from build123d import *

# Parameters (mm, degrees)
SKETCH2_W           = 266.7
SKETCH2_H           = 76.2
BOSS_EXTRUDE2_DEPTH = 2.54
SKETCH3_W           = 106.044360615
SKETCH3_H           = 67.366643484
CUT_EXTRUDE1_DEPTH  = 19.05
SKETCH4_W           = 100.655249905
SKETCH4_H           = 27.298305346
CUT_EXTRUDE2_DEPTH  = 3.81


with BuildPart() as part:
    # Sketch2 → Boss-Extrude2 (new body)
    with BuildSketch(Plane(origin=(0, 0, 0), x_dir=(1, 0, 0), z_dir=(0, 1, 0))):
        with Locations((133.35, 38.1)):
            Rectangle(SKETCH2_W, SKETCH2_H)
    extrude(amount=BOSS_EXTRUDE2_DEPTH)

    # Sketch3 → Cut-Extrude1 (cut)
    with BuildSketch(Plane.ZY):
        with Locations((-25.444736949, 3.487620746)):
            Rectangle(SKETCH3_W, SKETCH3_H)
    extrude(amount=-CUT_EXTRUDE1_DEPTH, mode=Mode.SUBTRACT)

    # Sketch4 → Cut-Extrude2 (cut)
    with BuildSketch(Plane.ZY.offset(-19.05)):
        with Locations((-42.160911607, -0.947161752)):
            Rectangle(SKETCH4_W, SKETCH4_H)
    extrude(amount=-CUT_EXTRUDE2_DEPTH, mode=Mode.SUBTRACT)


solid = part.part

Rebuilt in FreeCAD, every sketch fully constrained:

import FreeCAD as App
import Part
import Sketcher
from FreeCAD import Vector
Q = App.Units.Quantity


def add_polygon(sketch, points):
    """Adds a closed chain of lines whose ends are joined by coincident constraints."""
    first, n = sketch.GeometryCount, len(points)
    for a, b in zip(points, points[1:] + points[:1]):
        sketch.addGeometry(Part.LineSegment(App.Vector(*a, 0), App.Vector(*b, 0)), False)
    for i in range(n):
        sketch.addConstraint(Sketcher.Constraint("Coincident", first + i, 2, first + (i + 1) % n, 1))

doc = App.newDocument("Part")
params = doc.addObject("Spreadsheet::Sheet", "Params")
for row, (alias, value) in enumerate([
    ("sketch1_height", "3 in"),
    ("sketch1_width", "10.5 in"),
    ("pad1_length", "0.1 in"),
    ("pocket1_length", "0.75 in"),
    ("pocket2_length", "0.15 in"),
], start=1):
    params.set(f"A{row}", alias)
    params.set(f"B{row}", "=" + value)
    params.setAlias(f"B{row}", alias)

body = doc.addObject("PartDesign::Body", "Body")

sketch1 = body.newObject("Sketcher::SketchObject", "Sketch")
sketch1.AttachmentSupport = (doc.getObject("XZ_Plane"), [""])
sketch1.MapMode = "FlatFace"
add_polygon(sketch1, [(0, -76), (0, 0), (267, 0), (267, -76)])
sketch1.addConstraint(Sketcher.Constraint("Vertical", 0))
sketch1.addConstraint(Sketcher.Constraint("Horizontal", 1))
sketch1.addConstraint(Sketcher.Constraint("Vertical", 2))
sketch1.addConstraint(Sketcher.Constraint("Horizontal", 3))
sketch1.addConstraint(Sketcher.Constraint("Coincident", 0, 2, -1, 1))
sketch1.addConstraint(Sketcher.Constraint("DistanceY", 0, 1, 0, 2, Q("3 in")))
sketch1.addConstraint(Sketcher.Constraint("DistanceX", 1, 1, 1, 2, Q("10.5 in")))
sketch1.setExpression("Constraints[9]", "Params.sketch1_height")
sketch1.setExpression("Constraints[10]", "Params.sketch1_width")
pad1 = body.newObject("PartDesign::Pad", "Pad")
pad1.Profile = sketch1
pad1.setExpression("Length", "Params.pad1_length")
pad1.Reversed = True

sketch2 = body.newObject("Sketcher::SketchObject", "Sketch001")
sketch2.AttachmentSupport = (doc.getObject("YZ_Plane"), [""])
sketch2.MapMode = "FlatFace"
add_polygon(sketch2, [(37, -78), (-30, -78), (-30, 28), (37, 28)])
sketch2.addConstraint(Sketcher.Constraint("Horizontal", 0))
sketch2.addConstraint(Sketcher.Constraint("Vertical", 1))
sketch2.addConstraint(Sketcher.Constraint("Horizontal", 2))
sketch2.addConstraint(Sketcher.Constraint("Vertical", 3))
sketch2.addConstraint(Sketcher.Constraint("DistanceY", 1, 1, 1, 2, Q("106.044361 mm")))
sketch2.addConstraint(Sketcher.Constraint("DistanceX", 0, 2, -1, 1, Q("30.195701 mm")))
sketch2.addConstraint(Sketcher.Constraint("DistanceX", 0, 2, 0, 1, Q("67.366643 mm")))
sketch2.addConstraint(Sketcher.Constraint("DistanceY", 0, 2, -1, 1, Q("78.466917 mm")))
pocket1 = body.newObject("PartDesign::Pocket", "Pocket")
pocket1.Profile = sketch2
pocket1.setExpression("Length", "Params.pocket1_length")
pocket1.Reversed = True

sketch3 = body.newObject("Sketcher::SketchObject", "Sketch002")
sketch3.AttachmentSupport = (doc.getObject("YZ_Plane"), [""])
sketch3.MapMode = "FlatFace"
sketch3.AttachmentOffset = App.Placement(Vector(0, 0, 0.75 * 25.4), App.Rotation())
add_polygon(sketch3, [(13, -92), (-15, -92), (-15, 8), (13, 8)])
sketch3.addConstraint(Sketcher.Constraint("Horizontal", 0))
sketch3.addConstraint(Sketcher.Constraint("Vertical", 1))
sketch3.addConstraint(Sketcher.Constraint("Horizontal", 2))
sketch3.addConstraint(Sketcher.Constraint("Vertical", 3))
sketch3.addConstraint(Sketcher.Constraint("DistanceY", 1, 1, 1, 2, Q("100.65525 mm")))
sketch3.addConstraint(Sketcher.Constraint("DistanceX", 0, 2, 0, 1, Q("27.298305 mm")))
sketch3.addConstraint(Sketcher.Constraint("DistanceX", -1, 1, 2, 2, Q("12.701991 mm")))
sketch3.addConstraint(Sketcher.Constraint("DistanceY", 0, 2, -1, 1, Q("92.488537 mm")))
pocket2 = body.newObject("PartDesign::Pocket", "Pocket001")
pocket2.Profile = sketch3
pocket2.setExpression("Length", "Params.pocket2_length")
pocket2.Reversed = True

doc.recompute()
